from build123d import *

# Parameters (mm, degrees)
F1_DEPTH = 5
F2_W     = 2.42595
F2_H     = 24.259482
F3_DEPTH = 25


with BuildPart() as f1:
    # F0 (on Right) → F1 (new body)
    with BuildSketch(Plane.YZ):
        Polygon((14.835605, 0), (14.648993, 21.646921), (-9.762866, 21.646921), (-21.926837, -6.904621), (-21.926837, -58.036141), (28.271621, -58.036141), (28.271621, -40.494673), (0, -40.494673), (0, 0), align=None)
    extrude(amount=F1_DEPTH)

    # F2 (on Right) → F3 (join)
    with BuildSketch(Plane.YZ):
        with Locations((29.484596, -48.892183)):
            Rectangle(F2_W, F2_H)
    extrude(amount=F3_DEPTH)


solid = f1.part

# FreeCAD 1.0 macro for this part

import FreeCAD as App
import Part
import Sketcher

V = App.Vector
Q = App.Units.Quantity


def add_polygon(sketch, points):
    """Adds a closed chain of lines whose ends are joined by coincident constraints."""
    first, n = sketch.GeometryCount, len(points)
    for a, b in zip(points, points[1:] + points[:1]):
        sketch.addGeometry(Part.LineSegment(App.Vector(*a, 0), App.Vector(*b, 0)), False)
    for i in range(n):
        sketch.addConstraint(Sketcher.Constraint("Coincident", first + i, 2, first + (i + 1) % n, 1))

doc = App.newDocument("Part")
params = doc.addObject("Spreadsheet::Sheet", "Params")
for row, (alias, value) in enumerate([
    ("pad1_length", "5 mm"),
    ("pad2_length", "25 mm"),
], start=1):
    params.set(f"A{row}", alias)
    params.set(f"B{row}", "=" + value)
    params.setAlias(f"B{row}", alias)

body = doc.addObject("PartDesign::Body", "Body")

sketch1 = body.newObject("Sketcher::SketchObject", "Sketch")
sketch1.AttachmentSupport = (doc.getObject("YZ_Plane"), [""])
sketch1.MapMode = "FlatFace"
add_polygon(sketch1, [(15, 0), (15, 22), (-10, 22), (-22, -7), (-22, -58), (28, -58), (28, -40), (0, -40), (0, 0)])
sketch1.addConstraint(Sketcher.Constraint("Horizontal", 1))
sketch1.addConstraint(Sketcher.Constraint("Vertical", 3))
sketch1.addConstraint(Sketcher.Constraint("Horizontal", 4))
sketch1.addConstraint(Sketcher.Constraint("Vertical", 5))
sketch1.addConstraint(Sketcher.Constraint("Horizontal", 6))
sketch1.addConstraint(Sketcher.Constraint("Vertical", 7))
sketch1.addConstraint(Sketcher.Constraint("Horizontal", 8))
sketch1.addConstraint(Sketcher.Constraint("Coincident", 7, 2, -1, 1))
sketch1.addConstraint(Sketcher.Constraint("DistanceX", 1, 2, 1, 1, Q("24.411859 mm")))
sketch1.addConstraint(Sketcher.Constraint("DistanceX", 4, 1, 4, 2, Q("50.198458 mm")))
sketch1.addConstraint(Sketcher.Constraint("DistanceX", 6, 2, 6, 1, Q("28.271621 mm")))
sketch1.addConstraint(Sketcher.Constraint("DistanceY", 3, 2, 3, 1, Q("51.13152 mm")))
sketch1.addConstraint(Sketcher.Constraint("DistanceY", 5, 1, 5, 2, Q("17.541468 mm")))
sketch1.addConstraint(Sketcher.Constraint("DistanceX", 8, 1, 8, 2, Q("14.835605 mm")))
sketch1.addConstraint(Sketcher.Constraint("DistanceY", 7, 1, 7, 2, Q("40.494673 mm")))
sketch1.addConstraint(Sketcher.Constraint("DistanceY", -1, 1, 0, 2, Q("21.646921 mm")))
sketch1.addConstraint(Sketcher.Constraint("DistanceX", 2, 2, 1, 2, Q("12.163971 mm")))
pad1 = body.newObject("PartDesign::Pad", "Pad")
pad1.Profile = sketch1
pad1.setExpression("Length", "Params.pad1_length")

sketch2 = body.newObject("Sketcher::SketchObject", "Sketch001")
sketch2.AttachmentSupport = (doc.getObject("YZ_Plane"), [""])
sketch2.MapMode = "FlatFace"
add_polygon(sketch2, [(28.3, -36.8), (28.3, -61), (30.7, -61), (30.7, -36.8)])
sketch2.addConstraint(Sketcher.Constraint("Vertical", 0))
sketch2.addConstraint(Sketcher.Constraint("Horizontal", 1))
sketch2.addConstraint(Sketcher.Constraint("Vertical", 2))
sketch2.addConstraint(Sketcher.Constraint("Horizontal", 3))
sketch2.addConstraint(Sketcher.Constraint("DistanceX", 1, 1, 1, 2, Q("2.42595 mm")))
sketch2.addConstraint(Sketcher.Constraint("DistanceY", 0, 2, 0, 1, Q("24.259482 mm")))
sketch2.addConstraint(Sketcher.Constraint("DistanceX", -1, 1, 0, 2, Q("28.271621 mm")))
sketch2.addConstraint(Sketcher.Constraint("DistanceY", 0, 2, -1, 1, Q("61.021924 mm")))
pad2 = body.newObject("PartDesign::Pad", "Pad001")
pad2.Profile = sketch2
pad2.setExpression("Length", "Params.pad2_length")

doc.recompute()
